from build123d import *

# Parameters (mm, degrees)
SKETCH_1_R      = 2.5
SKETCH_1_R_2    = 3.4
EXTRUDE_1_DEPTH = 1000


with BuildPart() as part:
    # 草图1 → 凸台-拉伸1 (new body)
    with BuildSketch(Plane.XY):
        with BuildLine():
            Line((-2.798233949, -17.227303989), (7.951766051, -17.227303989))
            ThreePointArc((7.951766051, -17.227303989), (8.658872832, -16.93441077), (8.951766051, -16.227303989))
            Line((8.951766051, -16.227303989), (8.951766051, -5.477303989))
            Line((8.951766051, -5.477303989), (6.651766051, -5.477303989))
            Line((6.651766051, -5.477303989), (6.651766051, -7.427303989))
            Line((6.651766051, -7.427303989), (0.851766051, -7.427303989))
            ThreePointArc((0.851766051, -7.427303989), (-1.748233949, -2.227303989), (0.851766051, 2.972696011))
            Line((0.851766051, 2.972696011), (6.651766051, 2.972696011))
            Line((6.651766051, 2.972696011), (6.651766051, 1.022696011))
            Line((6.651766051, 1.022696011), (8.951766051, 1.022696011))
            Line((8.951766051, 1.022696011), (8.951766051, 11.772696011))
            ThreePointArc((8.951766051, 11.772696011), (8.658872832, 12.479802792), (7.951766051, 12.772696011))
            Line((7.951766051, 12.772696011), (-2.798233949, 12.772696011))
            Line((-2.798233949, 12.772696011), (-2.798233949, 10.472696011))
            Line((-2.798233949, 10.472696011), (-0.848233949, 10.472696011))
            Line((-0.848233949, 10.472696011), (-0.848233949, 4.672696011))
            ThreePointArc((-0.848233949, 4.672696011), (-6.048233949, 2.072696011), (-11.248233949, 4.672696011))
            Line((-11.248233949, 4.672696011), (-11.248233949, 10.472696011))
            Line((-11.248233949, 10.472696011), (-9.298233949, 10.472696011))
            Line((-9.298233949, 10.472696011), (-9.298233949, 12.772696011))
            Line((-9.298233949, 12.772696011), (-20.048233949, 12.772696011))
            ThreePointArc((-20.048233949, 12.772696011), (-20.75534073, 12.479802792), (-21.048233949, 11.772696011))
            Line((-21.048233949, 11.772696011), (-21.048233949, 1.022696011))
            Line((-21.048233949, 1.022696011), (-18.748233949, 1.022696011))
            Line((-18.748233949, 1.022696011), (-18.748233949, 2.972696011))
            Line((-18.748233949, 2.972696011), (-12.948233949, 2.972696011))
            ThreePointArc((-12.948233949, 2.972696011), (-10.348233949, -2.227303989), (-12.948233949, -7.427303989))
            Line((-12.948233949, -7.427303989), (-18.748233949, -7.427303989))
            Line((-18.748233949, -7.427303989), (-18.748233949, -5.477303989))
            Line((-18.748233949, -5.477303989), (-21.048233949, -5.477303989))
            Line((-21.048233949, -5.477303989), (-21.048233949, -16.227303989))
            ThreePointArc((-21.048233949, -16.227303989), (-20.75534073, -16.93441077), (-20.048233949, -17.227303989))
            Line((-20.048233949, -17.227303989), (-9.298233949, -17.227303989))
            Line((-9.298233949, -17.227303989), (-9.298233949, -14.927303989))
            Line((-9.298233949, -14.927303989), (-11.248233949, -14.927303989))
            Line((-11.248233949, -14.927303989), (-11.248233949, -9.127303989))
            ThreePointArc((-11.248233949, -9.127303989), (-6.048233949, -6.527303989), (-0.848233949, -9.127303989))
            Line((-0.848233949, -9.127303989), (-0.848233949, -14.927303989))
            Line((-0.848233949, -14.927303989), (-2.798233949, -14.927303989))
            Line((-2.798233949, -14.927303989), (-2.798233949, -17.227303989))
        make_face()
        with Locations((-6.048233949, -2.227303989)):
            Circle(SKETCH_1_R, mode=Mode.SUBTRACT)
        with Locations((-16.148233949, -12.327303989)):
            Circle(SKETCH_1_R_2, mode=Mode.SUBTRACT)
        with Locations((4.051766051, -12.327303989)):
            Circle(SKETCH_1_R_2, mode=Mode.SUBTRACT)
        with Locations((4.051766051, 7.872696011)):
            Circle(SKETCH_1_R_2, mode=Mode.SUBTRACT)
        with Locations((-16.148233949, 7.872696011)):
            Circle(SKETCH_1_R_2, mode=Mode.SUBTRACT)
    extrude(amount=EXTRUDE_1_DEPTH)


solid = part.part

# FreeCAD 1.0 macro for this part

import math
import FreeCAD as App
import Part
import Sketcher

doc = App.newDocument("Part")
body = doc.addObject("PartDesign::Body", "Body")

sketch1 = doc.addObject("Sketcher::SketchObject", "Sketch")
body.addObject(sketch1)
sketch1.AttachmentSupport = (doc.XY_Plane, [""])
sketch1.MapMode = "FlatFace"
sketch1.addGeometry(Part.LineSegment(App.Vector(-2.8, -17.2, 0), App.Vector(8, -17.2, 0)), False)
sketch1.addGeometry(Part.ArcOfCircle(Part.Circle(App.Vector(8, -16.2, 0), App.Vector(0, 0, 1), 1), math.radians(-90), math.radians(0)), False)
sketch1.addGeometry(Part.LineSegment(App.Vector(9, -16.2, 0), App.Vector(9, -5.5, 0)), False)
sketch1.addGeometry(Part.LineSegment(App.Vector(9, -5.5, 0), App.Vector(6.7, -5.5, 0)), False)
sketch1.addGeometry(Part.LineSegment(App.Vector(6.7, -5.5, 0), App.Vector(6.7, -7.4, 0)), False)
sketch1.addGeometry(Part.LineSegment(App.Vector(6.7, -7.4, 0), App.Vector(0.9, -7.4, 0)), False)
sketch1.addGeometry(Part.ArcOfCircle(Part.Circle(App.Vector(4.8, -2.2, 0), App.Vector(0, 0, 1), 6.5), math.radians(127), math.radians(233)), False)
sketch1.addGeometry(Part.LineSegment(App.Vector(0.9, 3, 0), App.Vector(6.7, 3, 0)), False)
sketch1.addGeometry(Part.LineSegment(App.Vector(6.7, 3, 0), App.Vector(6.7, 1, 0)), False)
sketch1.addGeometry(Part.LineSegment(App.Vector(6.7, 1, 0), App.Vector(9, 1, 0)), False)
sketch1.addGeometry(Part.LineSegment(App.Vector(9, 1, 0), App.Vector(9, 11.8, 0)), False)
sketch1.addGeometry(Part.ArcOfCircle(Part.Circle(App.Vector(8, 11.8, 0), App.Vector(0, 0, 1), 1), math.radians(0), math.radians(90)), False)
sketch1.addGeometry(Part.LineSegment(App.Vector(8, 12.8, 0), App.Vector(-2.8, 12.8, 0)), False)
sketch1.addGeometry(Part.LineSegment(App.Vector(-2.8, 12.8, 0), App.Vector(-2.8, 10.5, 0)), False)
sketch1.addGeometry(Part.LineSegment(App.Vector(-2.8, 10.5, 0), App.Vector(-0.8, 10.5, 0)), False)
sketch1.addGeometry(Part.LineSegment(App.Vector(-0.8, 10.5, 0), App.Vector(-0.8, 4.7, 0)), False)
sketch1.addGeometry(Part.ArcOfCircle(Part.Circle(App.Vector(-6, 8.6, 0), App.Vector(0, 0, 1), 6.5), math.radians(-143), math.radians(-37)), False)
sketch1.addGeometry(Part.LineSegment(App.Vector(-11.2, 4.7, 0), App.Vector(-11.2, 10.5, 0)), False)
sketch1.addGeometry(Part.LineSegment(App.Vector(-11.2, 10.5, 0), App.Vector(-9.3, 10.5, 0)), False)
sketch1.addGeometry(Part.LineSegment(App.Vector(-9.3, 10.5, 0), App.Vector(-9.3, 12.8, 0)), False)
sketch1.addGeometry(Part.LineSegment(App.Vector(-9.3, 12.8, 0), App.Vector(-20, 12.8, 0)), False)
sketch1.addGeometry(Part.ArcOfCircle(Part.Circle(App.Vector(-20, 11.8, 0), App.Vector(0, 0, 1), 1), math.radians(90), math.radians(180)), False)
sketch1.addGeometry(Part.LineSegment(App.Vector(-21, 11.8, 0), App.Vector(-21, 1, 0)), False)
sketch1.addGeometry(Part.LineSegment(App.Vector(-21, 1, 0), App.Vector(-18.7, 1, 0)), False)
sketch1.addGeometry(Part.LineSegment(App.Vector(-18.7, 1, 0), App.Vector(-18.7, 3, 0)), False)
sketch1.addGeometry(Part.LineSegment(App.Vector(-18.7, 3, 0), App.Vector(-12.9, 3, 0)), False)
sketch1.addGeometry(Part.ArcOfCircle(Part.Circle(App.Vector(-16.8, -2.2, 0), App.Vector(0, 0, 1), 6.5), math.radians(-53), math.radians(53)), False)
sketch1.addGeometry(Part.LineSegment(App.Vector(-12.9, -7.4, 0), App.Vector(-18.7, -7.4, 0)), False)
sketch1.addGeometry(Part.LineSegment(App.Vector(-18.7, -7.4, 0), App.Vector(-18.7, -5.5, 0)), False)
sketch1.addGeometry(Part.LineSegment(App.Vector(-18.7, -5.5, 0), App.Vector(-21, -5.5, 0)), False)
sketch1.addGeometry(Part.LineSegment(App.Vector(-21, -5.5, 0), App.Vector(-21, -16.2, 0)), False)
sketch1.addGeometry(Part.ArcOfCircle(Part.Circle(App.Vector(-20, -16.2, 0), App.Vector(0, 0, 1), 1), math.radians(-180), math.radians(-90)), False)
sketch1.addGeometry(Part.LineSegment(App.Vector(-20, -17.2, 0), App.Vector(-9.3, -17.2, 0)), False)
sketch1.addGeometry(Part.LineSegment(App.Vector(-9.3, -17.2, 0), App.Vector(-9.3, -14.9, 0)), False)
sketch1.addGeometry(Part.LineSegment(App.Vector(-9.3, -14.9, 0), App.Vector(-11.2, -14.9, 0)), False)
sketch1.addGeometry(Part.LineSegment(App.Vector(-11.2, -14.9, 0), App.Vector(-11.2, -9.1, 0)), False)
sketch1.addGeometry(Part.ArcOfCircle(Part.Circle(App.Vector(-6, -13, 0), App.Vector(0, 0, 1), 6.5), math.radians(37), math.radians(143)), False)
sketch1.addGeometry(Part.LineSegment(App.Vector(-0.8, -9.1, 0), App.Vector(-0.8, -14.9, 0)), False)
sketch1.addGeometry(Part.LineSegment(App.Vector(-0.8, -14.9, 0), App.Vector(-2.8, -14.9, 0)), False)
sketch1.addGeometry(Part.LineSegment(App.Vector(-2.8, -14.9, 0), App.Vector(-2.8, -17.2, 0)), False)
sketch1.addGeometry(Part.Circle(App.Vector(-16.1, -12.3, 0), App.Vector(0, 0, 1), 3.4), False)
sketch1.addGeometry(Part.Circle(App.Vector(4.1, -12.3, 0), App.Vector(0, 0, 1), 3.4), False)
sketch1.addGeometry(Part.Circle(App.Vector(-16.1, 7.9, 0), App.Vector(0, 0, 1), 3.4), False)
sketch1.addGeometry(Part.Circle(App.Vector(-6, -2.2, 0), App.Vector(0, 0, 1), 2.5), False)
sketch1.addGeometry(Part.Circle(App.Vector(4.1, 7.9, 0), App.Vector(0, 0, 1), 3.4), False)
sketch1.addConstraint(Sketcher.Constraint("Tangent", 0, 2, 1, 1))
sketch1.addConstraint(Sketcher.Constraint("Tangent", 1, 2, 2, 1))
sketch1.addConstraint(Sketcher.Constraint("Coincident", 2, 2, 3, 1))
sketch1.addConstraint(Sketcher.Constraint("Coincident", 3, 2, 4, 1))
sketch1.addConstraint(Sketcher.Constraint("Coincident", 4, 2, 5, 1))
sketch1.addConstraint(Sketcher.Constraint("Coincident", 5, 2, 6, 2))
sketch1.addConstraint(Sketcher.Constraint("Coincident", 6, 1, 7, 1))
sketch1.addConstraint(Sketcher.Constraint("Coincident", 7, 2, 8, 1))
sketch1.addConstraint(Sketcher.Constraint("Coincident", 8, 2, 9, 1))
sketch1.addConstraint(Sketcher.Constraint("Coincident", 9, 2, 10, 1))
sketch1.addConstraint(Sketcher.Constraint("Tangent", 10, 2, 11, 1))
sketch1.addConstraint(Sketcher.Constraint("Tangent", 11, 2, 12, 1))
sketch1.addConstraint(Sketcher.Constraint("Coincident", 12, 2, 13, 1))
sketch1.addConstraint(Sketcher.Constraint("Coincident", 13, 2, 14, 1))
sketch1.addConstraint(Sketcher.Constraint("Coincident", 14, 2, 15, 1))
sketch1.addConstraint(Sketcher.Constraint("Coincident", 15, 2, 16, 2))
sketch1.addConstraint(Sketcher.Constraint("Coincident", 16, 1, 17, 1))
sketch1.addConstraint(Sketcher.Constraint("Coincident", 17, 2, 18, 1))
sketch1.addConstraint(Sketcher.Constraint("Coincident", 18, 2, 19, 1))
sketch1.addConstraint(Sketcher.Constraint("Coincident", 19, 2, 20, 1))
sketch1.addConstraint(Sketcher.Constraint("Tangent", 20, 2, 21, 1))
sketch1.addConstraint(Sketcher.Constraint("Tangent", 21, 2, 22, 1))
sketch1.addConstraint(Sketcher.Constraint("Coincident", 22, 2, 23, 1))
sketch1.addConstraint(Sketcher.Constraint("Coincident", 23, 2, 24, 1))
sketch1.addConstraint(Sketcher.Constraint("Coincident", 24, 2, 25, 1))
sketch1.addConstraint(Sketcher.Constraint("Coincident", 25, 2, 26, 2))
sketch1.addConstraint(Sketcher.Constraint("Coincident", 26, 1, 27, 1))
sketch1.addConstraint(Sketcher.Constraint("Coincident", 27, 2, 28, 1))
sketch1.addConstraint(Sketcher.Constraint("Coincident", 28, 2, 29, 1))
sketch1.addConstraint(Sketcher.Constraint("Coincident", 29, 2, 30, 1))
sketch1.addConstraint(Sketcher.Constraint("Tangent", 30, 2, 31, 1))
sketch1.addConstraint(Sketcher.Constraint("Tangent", 31, 2, 32, 1))
sketch1.addConstraint(Sketcher.Constraint("Coincident", 32, 2, 33, 1))
sketch1.addConstraint(Sketcher.Constraint("Coincident", 33, 2, 34, 1))
sketch1.addConstraint(Sketcher.Constraint("Coincident", 34, 2, 35, 1))
sketch1.addConstraint(Sketcher.Constraint("Coincident", 35, 2, 36, 2))
sketch1.addConstraint(Sketcher.Constraint("Coincident", 36, 1, 37, 1))
sketch1.addConstraint(Sketcher.Constraint("Coincident", 37, 2, 38, 1))
sketch1.addConstraint(Sketcher.Constraint("Coincident", 38, 2, 39, 1))
sketch1.addConstraint(Sketcher.Constraint("Coincident", 39, 2, 0, 1))
sketch1.addConstraint(Sketcher.Constraint("Horizontal", 0))
sketch1.addConstraint(Sketcher.Constraint("Vertical", 2))
sketch1.addConstraint(Sketcher.Constraint("Horizontal", 3))
sketch1.addConstraint(Sketcher.Constraint("Vertical", 4))
sketch1.addConstraint(Sketcher.Constraint("Horizontal", 5))
sketch1.addConstraint(Sketcher.Constraint("Horizontal", 7))
sketch1.addConstraint(Sketcher.Constraint("Vertical", 8))
sketch1.addConstraint(Sketcher.Constraint("Horizontal", 9))
sketch1.addConstraint(Sketcher.Constraint("Vertical", 10))
sketch1.addConstraint(Sketcher.Constraint("Horizontal", 12))
sketch1.addConstraint(Sketcher.Constraint("Vertical", 13))
sketch1.addConstraint(Sketcher.Constraint("Horizontal", 14))
sketch1.addConstraint(Sketcher.Constraint("Vertical", 15))
sketch1.addConstraint(Sketcher.Constraint("Vertical", 17))
sketch1.addConstraint(Sketcher.Constraint("Horizontal", 18))
sketch1.addConstraint(Sketcher.Constraint("Vertical", 19))
sketch1.addConstraint(Sketcher.Constraint("Horizontal", 20))
sketch1.addConstraint(Sketcher.Constraint("Vertical", 22))
sketch1.addConstraint(Sketcher.Constraint("Horizontal", 23))
sketch1.addConstraint(Sketcher.Constraint("Vertical", 24))
sketch1.addConstraint(Sketcher.Constraint("Horizontal", 25))
sketch1.addConstraint(Sketcher.Constraint("Horizontal", 27))
sketch1.addConstraint(Sketcher.Constraint("Vertical", 28))
sketch1.addConstraint(Sketcher.Constraint("Horizontal", 29))
sketch1.addConstraint(Sketcher.Constraint("Vertical", 30))
sketch1.addConstraint(Sketcher.Constraint("Horizontal", 32))
sketch1.addConstraint(Sketcher.Constraint("Vertical", 33))
sketch1.addConstraint(Sketcher.Constraint("Horizontal", 34))
sketch1.addConstraint(Sketcher.Constraint("Vertical", 35))
sketch1.addConstraint(Sketcher.Constraint("Vertical", 37))
sketch1.addConstraint(Sketcher.Constraint("Horizontal", 38))
sketch1.addConstraint(Sketcher.Constraint("Vertical", 39))
sketch1.addConstraint(Sketcher.Constraint("Equal", 1, 11))
sketch1.addConstraint(Sketcher.Constraint("Equal", 6, 16))
sketch1.addConstraint(Sketcher.Constraint("Equal", 11, 21))
sketch1.addConstraint(Sketcher.Constraint("Equal", 16, 26))
sketch1.addConstraint(Sketcher.Constraint("Equal", 21, 31))
sketch1.addConstraint(Sketcher.Constraint("Equal", 26, 36))
sketch1.addConstraint(Sketcher.Constraint("Equal", 40, 41))
sketch1.addConstraint(Sketcher.Constraint("Equal", 41, 42))
sketch1.addConstraint(Sketcher.Constraint("Equal", 42, 44))
sketch1.addConstraint(Sketcher.Constraint("Horizontal", 11, 3, 21, 3))
sketch1.addConstraint(Sketcher.Constraint("Horizontal", 6, 3, 26, 3))
sketch1.addConstraint(Sketcher.Constraint("Horizontal", 1, 3, 31, 3))
sketch1.addConstraint(Sketcher.Constraint("Horizontal", 40, 3, 41, 3))
sketch1.addConstraint(Sketcher.Constraint("Horizontal", 26, 3, 43, 3))
sketch1.addConstraint(Sketcher.Constraint("Horizontal", 42, 3, 44, 3))
sketch1.addConstraint(Sketcher.Constraint("Horizontal", 15, 2, 16, 1))
sketch1.addConstraint(Sketcher.Constraint("Horizontal", 14, 2, 17, 2))
sketch1.addConstraint(Sketcher.Constraint("Horizontal", 9, 2, 22, 2))
sketch1.addConstraint(Sketcher.Constraint("Horizontal", 7, 2, 24, 2))
sketch1.addConstraint(Sketcher.Constraint("Horizontal", 5, 2, 26, 1))
sketch1.addConstraint(Sketcher.Constraint("Horizontal", 3, 2, 28, 2))
sketch1.addConstraint(Sketcher.Constraint("Horizontal", 35, 2, 36, 1))
sketch1.addConstraint(Sketcher.Constraint("Horizontal", 34, 2, 37, 2))
sketch1.addConstraint(Sketcher.Constraint("Vertical", 1, 3, 11, 3))
sketch1.addConstraint(Sketcher.Constraint("Vertical", 21, 3, 31, 3))
sketch1.addConstraint(Sketcher.Constraint("Vertical", 16, 3, 36, 3))
sketch1.addConstraint(Sketcher.Constraint("Vertical", 40, 3, 42, 3))
sketch1.addConstraint(Sketcher.Constraint("Vertical", 36, 3, 43, 3))
sketch1.addConstraint(Sketcher.Constraint("Vertical", 41, 3, 44, 3))
sketch1.addConstraint(Sketcher.Constraint("Vertical", 5, 2, 6, 1))
sketch1.addConstraint(Sketcher.Constraint("Vertical", 4, 2, 7, 2))
sketch1.addConstraint(Sketcher.Constraint("Vertical", 24, 2, 27, 2))
sketch1.addConstraint(Sketcher.Constraint("Vertical", 19, 2, 32, 2))
sketch1.addConstraint(Sketcher.Constraint("Vertical", 17, 2, 34, 2))
sketch1.addConstraint(Sketcher.Constraint("Vertical", 13, 2, 38, 2))
sketch1.addConstraint(Sketcher.Constraint("Equal", 14, 18))
sketch1.addConstraint(Sketcher.Constraint("Equal", 12, 20))
sketch1.addConstraint(Sketcher.Constraint("Equal", 9, 23))
sketch1.addConstraint(Sketcher.Constraint("Equal", 7, 25))
sketch1.addConstraint(Sketcher.Constraint("Equal", 32, 2))
sketch1.addConstraint(Sketcher.Constraint("Equal", 38, 4))
sketch1.addConstraint(Sketcher.Constraint("Equal", 4, 8))
sketch1.addConstraint(Sketcher.Constraint("Equal", 2, 10))
sketch1.addConstraint(Sketcher.Constraint("Equal", 29, 13))
sketch1.addConstraint(Sketcher.Constraint("Equal", 27, 15))
sketch1.addConstraint(Sketcher.Constraint("Equal", 19, 33))
sketch1.addConstraint(Sketcher.Constraint("Equal", 17, 35))
sketch1.addConstraint(Sketcher.Constraint("Diameter", 43, 5.0))
sketch1.addConstraint(Sketcher.Constraint("Radius", 1, 1.0))
sketch1.addConstraint(Sketcher.Constraint("Diameter", 40, 6.8))
sketch1.addConstraint(Sketcher.Constraint("Radius", 6, 6.5))
sketch1.addConstraint(Sketcher.Constraint("DistanceX", 3, 2, 3, 1, 2.3))
sketch1.addConstraint(Sketcher.Constraint("DistanceX", 5, 2, 5, 1, 5.8))
sketch1.addConstraint(Sketcher.Constraint("DistanceY", 1, 3, 6, 3, 14.0))
sketch1.addConstraint(Sketcher.Constraint("DistanceX", 16, 3, 11, 3, 14.0))
sketch1.addConstraint(Sketcher.Constraint("DistanceX", 0, 1, 0, 2, 10.75))
sketch1.addConstraint(Sketcher.Constraint("DistanceX", 14, 1, 14, 2, 1.95))
sketch1.addConstraint(Sketcher.Constraint("DistanceX", 31, 3, 40, 3, 3.9))
sketch1.addConstraint(Sketcher.Constraint("DistanceY", 31, 3, 40, 3, 3.9))
sketch1.addConstraint(Sketcher.Constraint("DistanceX", 41, 3, 1, 3, 3.9))
sketch1.addConstraint(Sketcher.Constraint("DistanceY", 42, 3, 21, 3, 3.9))
sketch1.addConstraint(Sketcher.Constraint("DistanceX", -1, 1, 1, 3, 7.951766))
sketch1.addConstraint(Sketcher.Constraint("DistanceY", 1, 3, -1, 1, 16.227304))
pad1 = doc.addObject("PartDesign::Pad", "Pad")
body.addObject(pad1)
pad1.Profile = sketch1
pad1.Length = 1000

doc.recompute()
